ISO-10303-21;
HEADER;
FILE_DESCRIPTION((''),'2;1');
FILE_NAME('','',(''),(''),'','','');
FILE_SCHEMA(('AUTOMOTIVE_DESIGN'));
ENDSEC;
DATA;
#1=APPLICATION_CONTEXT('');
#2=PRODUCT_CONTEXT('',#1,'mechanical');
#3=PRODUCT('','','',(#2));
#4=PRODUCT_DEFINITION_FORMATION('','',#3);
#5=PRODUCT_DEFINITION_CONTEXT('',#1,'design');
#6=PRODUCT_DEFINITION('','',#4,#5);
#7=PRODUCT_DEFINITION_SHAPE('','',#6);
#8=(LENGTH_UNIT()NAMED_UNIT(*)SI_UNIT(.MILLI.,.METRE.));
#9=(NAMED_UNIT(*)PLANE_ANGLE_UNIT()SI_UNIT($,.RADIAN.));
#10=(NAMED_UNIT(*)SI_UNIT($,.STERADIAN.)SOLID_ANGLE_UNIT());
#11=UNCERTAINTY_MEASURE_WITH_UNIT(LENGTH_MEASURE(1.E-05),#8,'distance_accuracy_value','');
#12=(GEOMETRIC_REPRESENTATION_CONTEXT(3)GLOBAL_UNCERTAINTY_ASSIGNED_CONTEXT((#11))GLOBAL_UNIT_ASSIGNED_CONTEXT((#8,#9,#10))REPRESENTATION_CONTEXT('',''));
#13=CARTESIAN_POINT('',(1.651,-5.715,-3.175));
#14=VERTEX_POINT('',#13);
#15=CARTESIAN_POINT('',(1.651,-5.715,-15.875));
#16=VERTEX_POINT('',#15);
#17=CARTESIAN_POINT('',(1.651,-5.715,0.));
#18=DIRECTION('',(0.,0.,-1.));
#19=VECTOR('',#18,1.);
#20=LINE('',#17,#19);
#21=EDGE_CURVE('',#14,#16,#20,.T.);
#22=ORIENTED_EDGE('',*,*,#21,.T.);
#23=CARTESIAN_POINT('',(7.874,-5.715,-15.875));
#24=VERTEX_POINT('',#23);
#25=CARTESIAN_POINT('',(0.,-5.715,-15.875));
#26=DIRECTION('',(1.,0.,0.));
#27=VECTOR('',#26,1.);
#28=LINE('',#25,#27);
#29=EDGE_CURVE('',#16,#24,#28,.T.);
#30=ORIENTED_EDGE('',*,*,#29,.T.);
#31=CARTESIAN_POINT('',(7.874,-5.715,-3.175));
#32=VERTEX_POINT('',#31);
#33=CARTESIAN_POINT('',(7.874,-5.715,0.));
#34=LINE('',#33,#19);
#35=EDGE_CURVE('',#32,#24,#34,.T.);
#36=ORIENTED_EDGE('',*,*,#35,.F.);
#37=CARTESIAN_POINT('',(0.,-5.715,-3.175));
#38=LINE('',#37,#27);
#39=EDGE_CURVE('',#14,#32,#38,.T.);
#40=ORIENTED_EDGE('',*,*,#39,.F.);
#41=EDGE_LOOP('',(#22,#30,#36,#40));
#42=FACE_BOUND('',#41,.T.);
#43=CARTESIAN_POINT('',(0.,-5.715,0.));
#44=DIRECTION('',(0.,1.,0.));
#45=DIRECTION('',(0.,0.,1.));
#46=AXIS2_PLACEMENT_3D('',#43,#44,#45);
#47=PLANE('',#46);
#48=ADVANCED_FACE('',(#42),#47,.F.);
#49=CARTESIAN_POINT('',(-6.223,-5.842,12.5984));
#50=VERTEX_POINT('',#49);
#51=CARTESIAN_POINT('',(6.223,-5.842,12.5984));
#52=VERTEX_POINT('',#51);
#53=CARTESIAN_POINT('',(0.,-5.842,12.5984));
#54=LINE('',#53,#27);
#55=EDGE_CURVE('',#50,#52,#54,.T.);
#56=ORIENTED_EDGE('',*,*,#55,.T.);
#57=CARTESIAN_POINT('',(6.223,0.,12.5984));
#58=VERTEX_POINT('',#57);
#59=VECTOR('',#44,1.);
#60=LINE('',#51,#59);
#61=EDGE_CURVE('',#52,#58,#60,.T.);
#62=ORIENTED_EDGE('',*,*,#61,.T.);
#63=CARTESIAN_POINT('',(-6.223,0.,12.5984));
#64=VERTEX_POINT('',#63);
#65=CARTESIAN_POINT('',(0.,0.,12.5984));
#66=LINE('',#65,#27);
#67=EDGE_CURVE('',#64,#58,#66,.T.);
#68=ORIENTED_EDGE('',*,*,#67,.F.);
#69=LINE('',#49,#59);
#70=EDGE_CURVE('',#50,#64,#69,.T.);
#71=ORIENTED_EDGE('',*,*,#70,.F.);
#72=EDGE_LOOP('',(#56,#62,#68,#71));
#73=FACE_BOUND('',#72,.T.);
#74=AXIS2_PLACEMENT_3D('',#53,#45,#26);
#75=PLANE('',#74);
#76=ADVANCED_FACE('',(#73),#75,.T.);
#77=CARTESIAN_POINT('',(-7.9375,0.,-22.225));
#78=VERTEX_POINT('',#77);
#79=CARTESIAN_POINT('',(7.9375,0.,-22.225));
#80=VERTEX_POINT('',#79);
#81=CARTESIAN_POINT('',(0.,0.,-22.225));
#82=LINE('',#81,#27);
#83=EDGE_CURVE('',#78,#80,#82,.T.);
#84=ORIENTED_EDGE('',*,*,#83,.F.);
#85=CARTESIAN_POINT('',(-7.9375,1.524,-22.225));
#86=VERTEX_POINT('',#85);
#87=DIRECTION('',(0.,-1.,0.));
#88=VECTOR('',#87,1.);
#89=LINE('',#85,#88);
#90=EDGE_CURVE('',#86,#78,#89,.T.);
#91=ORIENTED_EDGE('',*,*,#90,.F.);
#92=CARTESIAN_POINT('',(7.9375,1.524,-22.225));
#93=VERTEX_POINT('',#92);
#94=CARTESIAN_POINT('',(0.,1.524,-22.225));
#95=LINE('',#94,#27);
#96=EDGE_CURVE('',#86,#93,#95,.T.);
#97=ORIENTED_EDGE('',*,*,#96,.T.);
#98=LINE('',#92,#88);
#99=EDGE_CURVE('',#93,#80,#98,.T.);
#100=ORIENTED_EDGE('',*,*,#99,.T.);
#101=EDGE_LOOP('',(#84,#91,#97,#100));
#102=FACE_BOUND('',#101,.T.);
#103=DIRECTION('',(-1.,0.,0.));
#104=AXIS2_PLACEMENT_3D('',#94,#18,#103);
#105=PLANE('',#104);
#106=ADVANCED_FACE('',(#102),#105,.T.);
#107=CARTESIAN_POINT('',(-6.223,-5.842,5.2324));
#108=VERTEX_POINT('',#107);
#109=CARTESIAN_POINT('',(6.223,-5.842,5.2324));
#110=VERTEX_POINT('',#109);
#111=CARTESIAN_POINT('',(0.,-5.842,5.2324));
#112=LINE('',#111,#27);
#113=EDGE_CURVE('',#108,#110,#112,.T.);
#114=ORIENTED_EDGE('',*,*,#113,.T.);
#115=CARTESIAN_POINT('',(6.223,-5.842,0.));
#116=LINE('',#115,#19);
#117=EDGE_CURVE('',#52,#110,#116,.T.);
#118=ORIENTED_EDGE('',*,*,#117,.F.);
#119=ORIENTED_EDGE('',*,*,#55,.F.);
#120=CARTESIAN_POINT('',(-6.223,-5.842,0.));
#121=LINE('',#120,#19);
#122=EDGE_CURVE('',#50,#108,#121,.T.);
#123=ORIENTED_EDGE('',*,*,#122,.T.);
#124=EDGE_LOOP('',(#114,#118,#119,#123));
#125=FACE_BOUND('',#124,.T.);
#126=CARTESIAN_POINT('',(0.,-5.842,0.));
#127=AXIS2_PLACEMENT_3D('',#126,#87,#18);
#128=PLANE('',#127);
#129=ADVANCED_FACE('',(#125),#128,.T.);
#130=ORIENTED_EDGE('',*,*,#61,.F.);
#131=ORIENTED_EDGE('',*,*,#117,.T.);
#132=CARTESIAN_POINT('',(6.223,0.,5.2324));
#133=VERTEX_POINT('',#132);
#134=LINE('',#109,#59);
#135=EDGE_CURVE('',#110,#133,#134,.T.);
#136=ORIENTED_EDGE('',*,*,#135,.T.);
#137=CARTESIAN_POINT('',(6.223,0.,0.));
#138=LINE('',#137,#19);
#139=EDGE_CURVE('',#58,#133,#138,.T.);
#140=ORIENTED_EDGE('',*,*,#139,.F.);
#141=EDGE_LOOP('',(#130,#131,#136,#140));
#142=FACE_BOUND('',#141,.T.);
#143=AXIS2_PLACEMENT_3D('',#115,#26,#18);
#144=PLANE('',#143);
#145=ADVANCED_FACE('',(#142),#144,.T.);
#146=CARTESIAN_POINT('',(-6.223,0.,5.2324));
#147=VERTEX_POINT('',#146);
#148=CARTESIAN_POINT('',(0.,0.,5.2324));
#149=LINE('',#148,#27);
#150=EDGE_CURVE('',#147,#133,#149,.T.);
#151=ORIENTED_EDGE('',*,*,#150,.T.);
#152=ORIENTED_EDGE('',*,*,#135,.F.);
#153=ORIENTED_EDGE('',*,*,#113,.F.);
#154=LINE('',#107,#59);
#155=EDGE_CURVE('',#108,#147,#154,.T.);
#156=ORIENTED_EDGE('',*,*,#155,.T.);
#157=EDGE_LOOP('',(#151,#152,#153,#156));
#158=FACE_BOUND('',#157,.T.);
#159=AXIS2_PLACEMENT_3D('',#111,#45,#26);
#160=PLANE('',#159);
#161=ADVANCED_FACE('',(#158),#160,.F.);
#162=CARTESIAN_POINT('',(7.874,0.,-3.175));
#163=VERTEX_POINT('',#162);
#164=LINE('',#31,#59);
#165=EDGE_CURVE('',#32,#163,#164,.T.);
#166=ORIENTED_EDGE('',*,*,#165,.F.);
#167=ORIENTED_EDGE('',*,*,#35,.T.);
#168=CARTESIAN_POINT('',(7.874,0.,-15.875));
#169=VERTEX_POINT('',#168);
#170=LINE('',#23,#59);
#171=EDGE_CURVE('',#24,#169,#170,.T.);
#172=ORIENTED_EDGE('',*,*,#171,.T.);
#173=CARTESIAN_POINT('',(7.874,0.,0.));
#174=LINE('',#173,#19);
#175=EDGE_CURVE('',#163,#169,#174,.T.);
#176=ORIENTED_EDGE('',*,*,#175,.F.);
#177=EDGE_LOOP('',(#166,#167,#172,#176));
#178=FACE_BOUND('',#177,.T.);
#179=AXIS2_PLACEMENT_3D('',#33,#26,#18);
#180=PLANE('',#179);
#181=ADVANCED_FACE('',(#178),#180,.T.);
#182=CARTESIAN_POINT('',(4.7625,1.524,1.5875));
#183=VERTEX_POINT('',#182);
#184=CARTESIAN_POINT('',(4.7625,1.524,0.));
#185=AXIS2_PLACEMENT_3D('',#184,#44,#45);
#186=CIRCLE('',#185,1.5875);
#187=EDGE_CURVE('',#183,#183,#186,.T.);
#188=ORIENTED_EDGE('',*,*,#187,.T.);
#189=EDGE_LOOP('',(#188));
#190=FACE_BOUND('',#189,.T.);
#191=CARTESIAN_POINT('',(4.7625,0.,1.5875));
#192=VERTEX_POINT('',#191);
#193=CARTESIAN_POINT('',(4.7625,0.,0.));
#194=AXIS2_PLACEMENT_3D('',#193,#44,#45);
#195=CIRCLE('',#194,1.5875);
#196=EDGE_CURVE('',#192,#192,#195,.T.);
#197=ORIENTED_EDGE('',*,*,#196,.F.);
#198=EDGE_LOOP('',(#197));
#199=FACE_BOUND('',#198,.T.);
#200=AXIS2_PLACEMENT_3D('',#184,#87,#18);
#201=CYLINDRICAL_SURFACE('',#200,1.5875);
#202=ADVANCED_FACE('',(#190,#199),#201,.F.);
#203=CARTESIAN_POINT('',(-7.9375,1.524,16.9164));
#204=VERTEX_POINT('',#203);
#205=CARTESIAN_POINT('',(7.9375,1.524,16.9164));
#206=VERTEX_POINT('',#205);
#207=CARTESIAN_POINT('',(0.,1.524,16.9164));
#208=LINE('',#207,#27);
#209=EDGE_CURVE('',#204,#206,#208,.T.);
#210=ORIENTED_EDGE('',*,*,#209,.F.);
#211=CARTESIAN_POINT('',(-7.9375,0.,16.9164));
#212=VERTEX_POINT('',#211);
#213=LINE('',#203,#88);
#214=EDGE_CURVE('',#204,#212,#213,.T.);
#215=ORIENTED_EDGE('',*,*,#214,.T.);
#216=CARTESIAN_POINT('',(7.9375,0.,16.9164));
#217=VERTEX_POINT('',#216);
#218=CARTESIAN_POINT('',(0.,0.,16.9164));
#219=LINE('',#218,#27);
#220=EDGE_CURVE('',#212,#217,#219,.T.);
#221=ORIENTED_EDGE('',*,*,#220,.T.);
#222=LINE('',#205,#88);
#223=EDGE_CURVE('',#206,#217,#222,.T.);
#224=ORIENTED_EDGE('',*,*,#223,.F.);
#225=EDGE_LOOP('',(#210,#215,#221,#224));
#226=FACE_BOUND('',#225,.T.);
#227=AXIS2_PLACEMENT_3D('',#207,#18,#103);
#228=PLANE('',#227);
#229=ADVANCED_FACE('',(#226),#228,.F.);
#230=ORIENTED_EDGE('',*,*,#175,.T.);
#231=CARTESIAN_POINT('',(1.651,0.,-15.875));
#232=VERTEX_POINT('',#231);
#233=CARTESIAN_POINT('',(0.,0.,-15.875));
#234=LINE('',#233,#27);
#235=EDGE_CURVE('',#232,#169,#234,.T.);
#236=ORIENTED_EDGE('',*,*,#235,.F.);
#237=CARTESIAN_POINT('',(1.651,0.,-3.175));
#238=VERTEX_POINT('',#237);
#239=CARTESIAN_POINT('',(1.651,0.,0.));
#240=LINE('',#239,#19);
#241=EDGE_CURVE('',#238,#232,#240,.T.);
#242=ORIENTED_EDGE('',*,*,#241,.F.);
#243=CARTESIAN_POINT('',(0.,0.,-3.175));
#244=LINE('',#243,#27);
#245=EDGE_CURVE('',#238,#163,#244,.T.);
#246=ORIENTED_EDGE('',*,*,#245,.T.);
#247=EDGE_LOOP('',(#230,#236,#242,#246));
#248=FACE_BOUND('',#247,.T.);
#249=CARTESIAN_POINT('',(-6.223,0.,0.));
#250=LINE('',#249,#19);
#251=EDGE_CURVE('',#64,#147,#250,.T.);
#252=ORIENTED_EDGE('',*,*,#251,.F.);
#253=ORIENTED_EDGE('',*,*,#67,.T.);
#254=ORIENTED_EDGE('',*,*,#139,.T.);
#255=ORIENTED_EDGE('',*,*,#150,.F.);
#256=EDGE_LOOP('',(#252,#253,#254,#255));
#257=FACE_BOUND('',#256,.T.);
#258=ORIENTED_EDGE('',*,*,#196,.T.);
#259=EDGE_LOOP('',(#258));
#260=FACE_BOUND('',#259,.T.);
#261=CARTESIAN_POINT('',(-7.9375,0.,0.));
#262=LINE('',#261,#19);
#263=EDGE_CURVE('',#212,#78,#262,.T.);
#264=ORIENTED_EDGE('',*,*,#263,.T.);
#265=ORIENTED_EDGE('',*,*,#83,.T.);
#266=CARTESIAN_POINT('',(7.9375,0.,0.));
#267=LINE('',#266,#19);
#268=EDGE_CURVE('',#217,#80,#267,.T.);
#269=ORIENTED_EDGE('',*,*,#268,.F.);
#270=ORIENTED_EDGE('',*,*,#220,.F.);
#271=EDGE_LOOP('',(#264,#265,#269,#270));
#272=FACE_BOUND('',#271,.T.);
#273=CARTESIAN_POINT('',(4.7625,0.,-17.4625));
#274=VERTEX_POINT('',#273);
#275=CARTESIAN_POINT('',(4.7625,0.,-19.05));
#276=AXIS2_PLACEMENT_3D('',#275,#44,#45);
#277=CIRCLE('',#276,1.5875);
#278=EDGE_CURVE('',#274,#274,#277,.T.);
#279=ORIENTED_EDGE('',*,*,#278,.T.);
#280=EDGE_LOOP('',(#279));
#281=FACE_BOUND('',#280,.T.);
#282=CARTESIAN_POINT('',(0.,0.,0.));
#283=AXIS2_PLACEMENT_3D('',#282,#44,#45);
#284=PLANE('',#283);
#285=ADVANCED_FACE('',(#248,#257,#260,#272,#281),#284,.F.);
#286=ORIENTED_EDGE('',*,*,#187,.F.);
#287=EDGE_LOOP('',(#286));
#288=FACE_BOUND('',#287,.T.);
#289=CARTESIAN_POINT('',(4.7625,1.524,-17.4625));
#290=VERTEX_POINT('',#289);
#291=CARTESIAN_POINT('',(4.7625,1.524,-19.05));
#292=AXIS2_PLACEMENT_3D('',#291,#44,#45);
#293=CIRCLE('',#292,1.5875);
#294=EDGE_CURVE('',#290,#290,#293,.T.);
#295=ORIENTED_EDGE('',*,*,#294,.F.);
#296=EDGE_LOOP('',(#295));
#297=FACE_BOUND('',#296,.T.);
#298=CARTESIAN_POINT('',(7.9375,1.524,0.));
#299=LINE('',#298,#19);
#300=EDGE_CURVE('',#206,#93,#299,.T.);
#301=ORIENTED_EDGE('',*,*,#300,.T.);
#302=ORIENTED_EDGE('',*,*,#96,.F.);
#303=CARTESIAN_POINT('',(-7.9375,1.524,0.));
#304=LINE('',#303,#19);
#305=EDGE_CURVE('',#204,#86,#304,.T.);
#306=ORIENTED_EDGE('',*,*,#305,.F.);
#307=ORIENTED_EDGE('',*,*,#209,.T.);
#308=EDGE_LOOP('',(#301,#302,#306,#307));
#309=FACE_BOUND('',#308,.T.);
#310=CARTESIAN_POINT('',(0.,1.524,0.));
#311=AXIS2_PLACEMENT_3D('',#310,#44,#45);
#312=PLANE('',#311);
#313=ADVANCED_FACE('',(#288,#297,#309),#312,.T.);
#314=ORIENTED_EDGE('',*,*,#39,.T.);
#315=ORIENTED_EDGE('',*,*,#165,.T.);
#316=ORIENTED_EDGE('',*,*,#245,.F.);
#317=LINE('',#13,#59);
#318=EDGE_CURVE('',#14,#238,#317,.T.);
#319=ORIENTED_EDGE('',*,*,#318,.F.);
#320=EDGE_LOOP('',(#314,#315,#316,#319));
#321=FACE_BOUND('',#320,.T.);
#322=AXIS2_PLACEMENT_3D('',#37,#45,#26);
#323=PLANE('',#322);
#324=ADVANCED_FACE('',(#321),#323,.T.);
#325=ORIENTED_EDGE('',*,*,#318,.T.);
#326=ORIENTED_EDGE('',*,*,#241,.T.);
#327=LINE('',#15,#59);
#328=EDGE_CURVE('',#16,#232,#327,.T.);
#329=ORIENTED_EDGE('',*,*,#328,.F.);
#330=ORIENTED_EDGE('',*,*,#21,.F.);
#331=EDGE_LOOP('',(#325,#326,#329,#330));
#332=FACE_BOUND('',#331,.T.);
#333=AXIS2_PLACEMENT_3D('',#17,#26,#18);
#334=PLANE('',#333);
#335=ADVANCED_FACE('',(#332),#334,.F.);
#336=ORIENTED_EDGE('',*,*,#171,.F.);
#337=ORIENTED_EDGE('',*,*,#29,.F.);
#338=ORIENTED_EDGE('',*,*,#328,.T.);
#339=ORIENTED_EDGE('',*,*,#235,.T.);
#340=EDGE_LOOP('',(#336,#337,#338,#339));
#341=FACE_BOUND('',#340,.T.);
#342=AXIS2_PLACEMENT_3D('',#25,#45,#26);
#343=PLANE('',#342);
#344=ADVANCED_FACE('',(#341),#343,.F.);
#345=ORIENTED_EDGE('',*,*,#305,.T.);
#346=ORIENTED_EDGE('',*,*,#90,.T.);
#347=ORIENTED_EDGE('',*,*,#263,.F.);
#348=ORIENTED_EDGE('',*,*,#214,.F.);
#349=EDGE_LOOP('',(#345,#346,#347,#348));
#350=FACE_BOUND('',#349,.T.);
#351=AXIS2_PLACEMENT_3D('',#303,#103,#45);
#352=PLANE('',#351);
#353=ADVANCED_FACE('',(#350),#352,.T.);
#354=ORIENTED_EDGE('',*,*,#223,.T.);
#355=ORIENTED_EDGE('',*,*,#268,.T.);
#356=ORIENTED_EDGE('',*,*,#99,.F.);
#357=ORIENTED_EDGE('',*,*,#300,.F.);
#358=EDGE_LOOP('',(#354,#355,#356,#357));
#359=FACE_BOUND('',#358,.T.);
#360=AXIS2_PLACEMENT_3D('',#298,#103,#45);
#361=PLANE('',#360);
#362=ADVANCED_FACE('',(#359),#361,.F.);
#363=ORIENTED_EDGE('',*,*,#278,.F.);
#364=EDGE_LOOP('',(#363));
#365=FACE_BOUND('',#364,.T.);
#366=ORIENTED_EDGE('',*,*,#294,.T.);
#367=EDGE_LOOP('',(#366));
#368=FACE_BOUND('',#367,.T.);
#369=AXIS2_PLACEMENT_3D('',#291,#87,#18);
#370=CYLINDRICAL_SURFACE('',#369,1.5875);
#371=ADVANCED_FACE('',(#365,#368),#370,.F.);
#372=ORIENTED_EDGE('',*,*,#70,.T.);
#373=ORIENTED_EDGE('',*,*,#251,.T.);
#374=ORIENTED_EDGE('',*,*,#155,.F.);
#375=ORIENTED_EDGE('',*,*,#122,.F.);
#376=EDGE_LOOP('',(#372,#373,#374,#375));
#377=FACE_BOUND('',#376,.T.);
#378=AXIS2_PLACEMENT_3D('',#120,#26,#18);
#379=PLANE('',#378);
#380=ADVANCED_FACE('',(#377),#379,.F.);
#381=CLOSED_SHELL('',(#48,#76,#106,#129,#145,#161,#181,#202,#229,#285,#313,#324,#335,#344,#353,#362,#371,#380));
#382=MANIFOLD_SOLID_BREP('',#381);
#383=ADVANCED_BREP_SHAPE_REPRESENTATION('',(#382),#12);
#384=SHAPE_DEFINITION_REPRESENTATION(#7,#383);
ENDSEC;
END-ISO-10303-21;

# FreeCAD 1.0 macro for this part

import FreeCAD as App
import Part
import Sketcher
Q = App.Units.Quantity


def add_polygon(sketch, points):
    """Adds a closed chain of lines whose ends are joined by coincident constraints."""
    first, n = sketch.GeometryCount, len(points)
    for a, b in zip(points, points[1:] + points[:1]):
        sketch.addGeometry(Part.LineSegment(App.Vector(*a, 0), App.Vector(*b, 0)), False)
    for i in range(n):
        sketch.addConstraint(Sketcher.Constraint("Coincident", first + i, 2, first + (i + 1) % n, 1))

doc = App.newDocument("Part")
body = doc.addObject("PartDesign::Body", "Body")

sketch1 = body.newObject("Sketcher::SketchObject", "Sketch")
sketch1.AttachmentSupport = (doc.getObject("XZ_Plane"), [""])
sketch1.MapMode = "FlatFace"
add_polygon(sketch1, [(-7.9375, -22.225), (-7.9375, 16.9164), (7.9375, 16.9164), (7.9375, -22.225)])
sketch1.addGeometry(Part.Circle(App.Vector(4.7625, 0, 0), App.Vector(0, 0, 1), 1.5875), False)
add_polygon(sketch1, [(7.874, -3.175), (1.651, -3.175), (1.651, -15.875), (7.874, -15.875)])
sketch1.addGeometry(Part.Circle(App.Vector(4.7625, -19.05, 0), App.Vector(0, 0, 1), 1.5875), False)
sketch1.addConstraint(Sketcher.Constraint("Vertical", 0))
sketch1.addConstraint(Sketcher.Constraint("Horizontal", 1))
sketch1.addConstraint(Sketcher.Constraint("Vertical", 2))
sketch1.addConstraint(Sketcher.Constraint("Horizontal", 3))
sketch1.addConstraint(Sketcher.Constraint("Horizontal", 5))
sketch1.addConstraint(Sketcher.Constraint("Vertical", 6))
sketch1.addConstraint(Sketcher.Constraint("Horizontal", 7))
sketch1.addConstraint(Sketcher.Constraint("Vertical", 8))
sketch1.addConstraint(Sketcher.Constraint("Equal", 4, 9))
sketch1.addConstraint(Sketcher.Constraint("PointOnObject", 4, 3, -1))
sketch1.addConstraint(Sketcher.Constraint("Vertical", 4, 3, 9, 3))
sketch1.addConstraint(Sketcher.Constraint("Diameter", 4, Q("0.125 in")))
sketch1.addConstraint(Sketcher.Constraint("DistanceY", 6, 2, 6, 1, Q("0.5 in")))
sketch1.addConstraint(Sketcher.Constraint("DistanceX", 0, 2, 4, 3, Q("0.5 in")))
sketch1.addConstraint(Sketcher.Constraint("DistanceX", 1, 1, 1, 2, Q("0.625 in")))
sketch1.addConstraint(Sketcher.Constraint("DistanceX", 5, 2, 5, 1, Q("0.245 in")))
sketch1.addConstraint(Sketcher.Constraint("DistanceY", 0, 1, 0, 2, Q("1.541 in")))
sketch1.addConstraint(Sketcher.Constraint("DistanceY", 9, 3, -1, 1, Q("0.75 in")))
sketch1.addConstraint(Sketcher.Constraint("DistanceX", -1, 1, 7, 2, Q("0.31 in")))
sketch1.addConstraint(Sketcher.Constraint("DistanceY", 2, 2, 5, 2, Q("0.75 in")))
sketch1.addConstraint(Sketcher.Constraint("DistanceX", -1, 1, 4, 3, Q("0.1875 in")))
sketch1.addConstraint(Sketcher.Constraint("DistanceY", -1, 1, 0, 2, Q("0.666 in")))
pad1 = body.newObject("PartDesign::Pad", "Pad")
pad1.Profile = sketch1
pad1.Length = Q("0.06 in")
pad1.Reversed = True

sketch2 = body.newObject("Sketcher::SketchObject", "Sketch001")
sketch2.AttachmentSupport = (doc.getObject("XZ_Plane"), [""])
sketch2.MapMode = "FlatFace"
add_polygon(sketch2, [(1.651, -15.875), (1.651, -3.175), (7.874, -3.175), (7.874, -15.875)])
sketch2.addConstraint(Sketcher.Constraint("Vertical", 0))
sketch2.addConstraint(Sketcher.Constraint("Horizontal", 1))
sketch2.addConstraint(Sketcher.Constraint("Vertical", 2))
sketch2.addConstraint(Sketcher.Constraint("Horizontal", 3))
sketch2.addConstraint(Sketcher.Constraint("DistanceY", 0, 1, 0, 2, Q("0.5 in")))
sketch2.addConstraint(Sketcher.Constraint("DistanceX", 1, 1, 1, 2, Q("0.245 in")))
sketch2.addConstraint(Sketcher.Constraint("DistanceX", -1, 1, 1, 2, Q("0.31 in")))
sketch2.addConstraint(Sketcher.Constraint("DistanceY", 0, 2, -1, 1, Q("0.125 in")))
pad2 = body.newObject("PartDesign::Pad", "Pad001")
pad2.Profile = sketch2
pad2.Length = Q("0.06 in")
pad2.Reversed = True

sketch3 = body.newObject("Sketcher::SketchObject", "Sketch002")
sketch3.AttachmentSupport = (doc.getObject("XZ_Plane"), [""])
sketch3.MapMode = "FlatFace"
add_polygon(sketch3, [(7.874, -3.175), (7.874, -15.875), (1.651, -15.875), (1.651, -3.175)])
sketch3.addConstraint(Sketcher.Constraint("Vertical", 0))
sketch3.addConstraint(Sketcher.Constraint("Horizontal", 1))
sketch3.addConstraint(Sketcher.Constraint("Vertical", 2))
sketch3.addConstraint(Sketcher.Constraint("Horizontal", 3))
sketch3.addConstraint(Sketcher.Constraint("DistanceY", 0, 2, 0, 1, Q("0.5 in")))
sketch3.addConstraint(Sketcher.Constraint("DistanceX", 1, 2, 1, 1, Q("0.245 in")))
sketch3.addConstraint(Sketcher.Constraint("DistanceX", -1, 1, 0, 2, Q("0.31 in")))
sketch3.addConstraint(Sketcher.Constraint("DistanceY", 0, 2, -1, 1, Q("0.625 in")))
pad3 = body.newObject("PartDesign::Pad", "Pad002")
pad3.Profile = sketch3
pad3.Length = Q("0.225 in")

sketch4 = body.newObject("Sketcher::SketchObject", "Sketch003")
sketch4.AttachmentSupport = (doc.getObject("XZ_Plane"), [""])
sketch4.MapMode = "FlatFace"
add_polygon(sketch4, [(6.223, 5.2324), (6.223, 12.5984), (-6.223, 12.5984), (-6.223, 5.2324)])
sketch4.addConstraint(Sketcher.Constraint("Vertical", 0))
sketch4.addConstraint(Sketcher.Constraint("Horizontal", 1))
sketch4.addConstraint(Sketcher.Constraint("Vertical", 2))
sketch4.addConstraint(Sketcher.Constraint("Horizontal", 3))
sketch4.addConstraint(Sketcher.Constraint("DistanceX", 1, 2, 1, 1, Q("0.49 in")))
sketch4.addConstraint(Sketcher.Constraint("DistanceY", 0, 1, 0, 2, Q("0.29 in")))
sketch4.addConstraint(Sketcher.Constraint("DistanceX", -1, 1, 0, 2, Q("0.245 in")))
sketch4.addConstraint(Sketcher.Constraint("DistanceY", -1, 1, 0, 2, Q("0.496 in")))
pad4 = body.newObject("PartDesign::Pad", "Pad003")
pad4.Profile = sketch4
pad4.Length = Q("0.23 in")

doc.recompute()
